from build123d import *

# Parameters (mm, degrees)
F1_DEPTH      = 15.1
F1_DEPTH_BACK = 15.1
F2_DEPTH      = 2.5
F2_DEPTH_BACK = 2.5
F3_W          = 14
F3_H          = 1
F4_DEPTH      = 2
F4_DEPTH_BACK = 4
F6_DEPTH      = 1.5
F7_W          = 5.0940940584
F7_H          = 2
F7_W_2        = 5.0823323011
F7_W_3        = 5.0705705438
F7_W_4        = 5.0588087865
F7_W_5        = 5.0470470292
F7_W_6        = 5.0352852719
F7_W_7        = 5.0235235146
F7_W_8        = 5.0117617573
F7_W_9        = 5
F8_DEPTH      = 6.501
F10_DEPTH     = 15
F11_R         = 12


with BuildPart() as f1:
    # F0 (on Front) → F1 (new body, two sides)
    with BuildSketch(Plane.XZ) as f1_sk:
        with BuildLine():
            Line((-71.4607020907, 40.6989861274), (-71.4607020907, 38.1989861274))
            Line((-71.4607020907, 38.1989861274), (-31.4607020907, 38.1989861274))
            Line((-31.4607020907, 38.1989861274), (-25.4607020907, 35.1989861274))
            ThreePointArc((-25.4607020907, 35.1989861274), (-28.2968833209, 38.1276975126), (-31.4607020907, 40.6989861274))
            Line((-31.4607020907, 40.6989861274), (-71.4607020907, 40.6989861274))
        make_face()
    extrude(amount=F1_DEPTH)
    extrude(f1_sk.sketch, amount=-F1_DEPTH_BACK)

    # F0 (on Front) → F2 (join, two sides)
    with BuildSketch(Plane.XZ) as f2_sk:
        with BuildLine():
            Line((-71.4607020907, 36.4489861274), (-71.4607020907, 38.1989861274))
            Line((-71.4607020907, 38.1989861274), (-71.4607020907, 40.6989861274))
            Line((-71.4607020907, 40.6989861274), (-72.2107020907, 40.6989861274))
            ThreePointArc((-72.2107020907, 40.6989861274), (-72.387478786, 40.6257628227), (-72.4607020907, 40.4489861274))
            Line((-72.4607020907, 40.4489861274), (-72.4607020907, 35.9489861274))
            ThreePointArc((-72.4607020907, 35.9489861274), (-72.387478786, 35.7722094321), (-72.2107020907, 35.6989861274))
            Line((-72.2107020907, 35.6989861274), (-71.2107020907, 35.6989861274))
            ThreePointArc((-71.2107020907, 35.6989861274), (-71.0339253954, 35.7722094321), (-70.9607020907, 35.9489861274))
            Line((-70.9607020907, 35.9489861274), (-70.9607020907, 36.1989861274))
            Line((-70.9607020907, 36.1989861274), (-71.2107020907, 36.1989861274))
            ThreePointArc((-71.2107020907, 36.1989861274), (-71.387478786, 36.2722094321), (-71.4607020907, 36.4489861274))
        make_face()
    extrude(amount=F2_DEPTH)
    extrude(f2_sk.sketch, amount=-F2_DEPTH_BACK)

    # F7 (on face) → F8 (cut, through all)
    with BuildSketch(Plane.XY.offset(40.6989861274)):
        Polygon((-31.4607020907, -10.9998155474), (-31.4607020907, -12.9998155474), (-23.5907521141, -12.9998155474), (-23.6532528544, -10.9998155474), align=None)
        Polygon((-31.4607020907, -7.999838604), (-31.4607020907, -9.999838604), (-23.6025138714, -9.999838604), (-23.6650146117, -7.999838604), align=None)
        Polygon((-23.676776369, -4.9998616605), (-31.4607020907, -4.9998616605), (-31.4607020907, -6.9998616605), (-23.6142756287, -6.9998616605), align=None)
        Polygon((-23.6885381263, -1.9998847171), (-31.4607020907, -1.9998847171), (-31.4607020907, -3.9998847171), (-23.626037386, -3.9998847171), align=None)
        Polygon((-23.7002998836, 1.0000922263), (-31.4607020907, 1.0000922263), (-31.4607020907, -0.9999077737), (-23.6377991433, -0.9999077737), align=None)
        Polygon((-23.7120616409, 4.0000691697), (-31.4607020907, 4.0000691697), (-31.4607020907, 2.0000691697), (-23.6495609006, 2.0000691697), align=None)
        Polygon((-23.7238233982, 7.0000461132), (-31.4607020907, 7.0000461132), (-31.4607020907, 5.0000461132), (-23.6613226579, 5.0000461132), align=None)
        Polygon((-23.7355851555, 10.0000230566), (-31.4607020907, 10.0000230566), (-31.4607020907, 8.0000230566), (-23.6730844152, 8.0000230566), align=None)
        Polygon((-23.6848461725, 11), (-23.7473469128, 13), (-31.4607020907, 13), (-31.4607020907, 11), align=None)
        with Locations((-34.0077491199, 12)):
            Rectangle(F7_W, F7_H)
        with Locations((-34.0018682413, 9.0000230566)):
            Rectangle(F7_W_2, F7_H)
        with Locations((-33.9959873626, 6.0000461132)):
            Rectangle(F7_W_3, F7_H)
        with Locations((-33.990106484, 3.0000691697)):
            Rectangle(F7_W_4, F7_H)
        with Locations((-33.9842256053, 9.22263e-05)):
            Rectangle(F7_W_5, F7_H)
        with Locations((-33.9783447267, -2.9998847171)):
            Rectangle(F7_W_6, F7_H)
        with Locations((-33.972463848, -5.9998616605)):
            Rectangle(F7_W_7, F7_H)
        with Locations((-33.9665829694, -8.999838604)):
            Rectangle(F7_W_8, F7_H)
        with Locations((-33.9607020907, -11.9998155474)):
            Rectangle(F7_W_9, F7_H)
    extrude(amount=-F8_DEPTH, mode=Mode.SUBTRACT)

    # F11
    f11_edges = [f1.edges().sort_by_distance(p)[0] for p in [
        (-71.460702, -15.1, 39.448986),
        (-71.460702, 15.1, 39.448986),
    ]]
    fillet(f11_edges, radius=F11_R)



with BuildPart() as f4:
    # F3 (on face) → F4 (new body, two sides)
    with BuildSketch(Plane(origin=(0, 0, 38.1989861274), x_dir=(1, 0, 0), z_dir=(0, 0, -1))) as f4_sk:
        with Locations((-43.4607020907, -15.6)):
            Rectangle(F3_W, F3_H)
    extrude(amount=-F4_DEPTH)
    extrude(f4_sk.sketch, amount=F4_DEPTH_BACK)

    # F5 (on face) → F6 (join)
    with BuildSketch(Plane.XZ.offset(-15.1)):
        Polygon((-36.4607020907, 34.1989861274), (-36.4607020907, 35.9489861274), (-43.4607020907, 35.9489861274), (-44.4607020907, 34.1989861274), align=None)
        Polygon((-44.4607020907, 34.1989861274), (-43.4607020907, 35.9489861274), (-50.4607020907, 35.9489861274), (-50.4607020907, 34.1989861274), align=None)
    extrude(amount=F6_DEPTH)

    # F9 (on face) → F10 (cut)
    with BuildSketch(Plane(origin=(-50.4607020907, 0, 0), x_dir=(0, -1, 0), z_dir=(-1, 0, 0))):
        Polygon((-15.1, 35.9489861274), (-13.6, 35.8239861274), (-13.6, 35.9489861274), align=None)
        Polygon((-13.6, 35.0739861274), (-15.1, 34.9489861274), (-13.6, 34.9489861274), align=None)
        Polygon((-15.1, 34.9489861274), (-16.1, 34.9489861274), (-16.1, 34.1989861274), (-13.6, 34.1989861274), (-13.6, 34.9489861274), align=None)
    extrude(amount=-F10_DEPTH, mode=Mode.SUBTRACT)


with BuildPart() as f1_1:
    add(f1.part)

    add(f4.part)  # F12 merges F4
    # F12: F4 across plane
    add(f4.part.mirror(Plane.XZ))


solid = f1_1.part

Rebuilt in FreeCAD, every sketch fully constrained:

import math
import FreeCAD as App
import Part
import Sketcher

V = App.Vector


def edges_at(feature, points):
    """Names of the edges that pass closest to the given points."""
    edges = feature.Shape.Edges
    near = lambda p: min(range(len(edges)), key=lambda i: edges[i].distToShape(Part.Vertex(*p))[0])
    return sorted({f"Edge{near(p) + 1}" for p in points})

doc = App.newDocument("Part")
body = doc.addObject("PartDesign::Body", "Body")

# Sketch on XZ plane
sketch1 = body.newObject("Sketcher::SketchObject", "Sketch")
sketch1.AttachmentSupport = (doc.getObject("XZ_Plane"), [""])
sketch1.MapMode = "FlatFace"
sketch1.addGeometry([
    Part.LineSegment(V(-71.460702, 40.698986, 0), V(-71.460702, 38.198986, 0)),  # 0
    Part.LineSegment(V(-71.460702, 38.198986, 0), V(-31.460702, 38.198986, 0)),  # 1
    Part.LineSegment(V(-31.460702, 38.198986, 0), V(-25.460702, 35.198986, 0)),  # 2
    Part.ArcOfCircle(Part.Circle(V(-51.460702, 12.858077, 0), V(0, 0, 1), 34.279968), math.radians(40.671338), math.radians(54.307767)),  # 3
    Part.LineSegment(V(-31.460702, 40.698986, 0), V(-71.460702, 40.698986, 0)),  # 4
], False)
sketch1.addConstraint([
    Sketcher.Constraint("Coincident", 0, 2, 1, 1),
    Sketcher.Constraint("Coincident", 1, 2, 2, 1),
    Sketcher.Constraint("Coincident", 2, 2, 3, 1),
    Sketcher.Constraint("Coincident", 3, 2, 4, 1),
    Sketcher.Constraint("Coincident", 4, 2, 0, 1),
    Sketcher.Constraint("Vertical", 0),
    Sketcher.Constraint("Horizontal", 1),
    Sketcher.Constraint("Horizontal", 4),
    Sketcher.Constraint("Vertical", 1, 2, 3, 2),
    Sketcher.Constraint("DistanceX", 1, 1, 1, 2, 40.0),
    Sketcher.Constraint("DistanceY", 0, 2, 0, 1, 2.5),
    Sketcher.Constraint("DistanceX", 0, 2, 3, 3, 20.0),
    Sketcher.Constraint("DistanceX", 1, 2, 2, 2, 6.0),
    Sketcher.Constraint("DistanceY", 2, 2, 1, 2, 3.0),
    Sketcher.Constraint("DistanceX", 3, 3, -1, 1, 51.460702),
    Sketcher.Constraint("DistanceY", -1, 1, 3, 3, 12.858077),
])
pad1 = body.newObject("PartDesign::Pad", "Pad")
pad1.Profile = sketch1
pad1.Type = "TwoLengths"
pad1.Length = 15.1
pad1.Length2 = 15.1

# Sketch on XZ plane
sketch2 = body.newObject("Sketcher::SketchObject", "Sketch001")
sketch2.AttachmentSupport = (doc.getObject("XZ_Plane"), [""])
sketch2.MapMode = "FlatFace"
sketch2.addGeometry([
    Part.LineSegment(V(-71.460702, 36.448986, 0), V(-71.460702, 40.698986, 0)),  # 0
    Part.LineSegment(V(-71.460702, 40.698986, 0), V(-72.210702, 40.698986, 0)),  # 1
    Part.ArcOfCircle(Part.Circle(V(-72.210702, 40.448986, 0), V(0, 0, 1), 0.25), math.radians(90), math.radians(180)),  # 2
    Part.LineSegment(V(-72.460702, 40.448986, 0), V(-72.460702, 35.948986, 0)),  # 3
    Part.ArcOfCircle(Part.Circle(V(-72.210702, 35.948986, 0), V(0, 0, 1), 0.25), math.radians(180), math.radians(270)),  # 4
    Part.LineSegment(V(-72.210702, 35.698986, 0), V(-71.210702, 35.698986, 0)),  # 5
    Part.ArcOfCircle(Part.Circle(V(-71.210702, 35.948986, 0), V(0, 0, 1), 0.25), math.radians(-90), math.radians(0)),  # 6
    Part.LineSegment(V(-70.960702, 35.948986, 0), V(-70.960702, 36.198986, 0)),  # 7
    Part.LineSegment(V(-70.960702, 36.198986, 0), V(-71.210702, 36.198986, 0)),  # 8
    Part.ArcOfCircle(Part.Circle(V(-71.210702, 36.448986, 0), V(0, 0, 1), 0.25), math.radians(180), math.radians(270)),  # 9
], False)
sketch2.addConstraint([
    Sketcher.Constraint("Coincident", 0, 2, 1, 1),
    Sketcher.Constraint("Tangent", 1, 2, 2, 1),
    Sketcher.Constraint("Tangent", 2, 2, 3, 1),
    Sketcher.Constraint("Tangent", 3, 2, 4, 1),
    Sketcher.Constraint("Tangent", 4, 2, 5, 1),
    Sketcher.Constraint("Tangent", 5, 2, 6, 1),
    Sketcher.Constraint("Tangent", 6, 2, 7, 1),
    Sketcher.Constraint("Coincident", 7, 2, 8, 1),
    Sketcher.Constraint("Tangent", 8, 2, 9, 2),
    Sketcher.Constraint("Tangent", 9, 1, 0, 1),
    Sketcher.Constraint("Vertical", 0),
    Sketcher.Constraint("Horizontal", 1),
    Sketcher.Constraint("Vertical", 3),
    Sketcher.Constraint("Horizontal", 5),
    Sketcher.Constraint("Vertical", 7),
    Sketcher.Constraint("Horizontal", 8),
    Sketcher.Constraint("Equal", 2, 4),
    Sketcher.Constraint("Equal", 4, 6),
    Sketcher.Constraint("Equal", 6, 9),
    Sketcher.Constraint("Vertical", 6, 3, 9, 3),
    Sketcher.Constraint("Equal", 8, 7),
    Sketcher.Constraint("DistanceX", 5, 1, 5, 2, 1.0),
    Sketcher.Constraint("Radius", 2, 0.25),
    Sketcher.Constraint("DistanceY", 3, 2, 3, 1, 4.5),
    Sketcher.Constraint("DistanceX", 2, 3, -1, 1, 72.210702),
    Sketcher.Constraint("DistanceY", -1, 1, 2, 3, 40.448986),
])
pad2 = body.newObject("PartDesign::Pad", "Pad001")
pad2.Profile = sketch2
pad2.Type = "TwoLengths"
pad2.Length = 2.5
pad2.Length2 = 2.5

# Sketch on XY plane
sketch3 = body.newObject("Sketcher::SketchObject", "Sketch002")
sketch3.AttachmentSupport = (doc.getObject("XY_Plane"), [""])
sketch3.MapMode = "FlatFace"
sketch3.AttachmentOffset = App.Placement(V(0, 0, 40.698986), App.Rotation())
sketch3.addGeometry([
    Part.LineSegment(V(-23.590752, -12.999816, 0), V(-23.653253, -10.999816, 0)),  # 0
    Part.LineSegment(V(-23.653253, -10.999816, 0), V(-36.460702, -10.999816, 0)),  # 1
    Part.LineSegment(V(-36.460702, -10.999816, 0), V(-36.460702, -12.999816, 0)),  # 2
    Part.LineSegment(V(-36.460702, -12.999816, 0), V(-23.590752, -12.999816, 0)),  # 3
    Part.LineSegment(V(-23.602514, -9.999839, 0), V(-23.665015, -7.999839, 0)),  # 4
    Part.LineSegment(V(-23.665015, -7.999839, 0), V(-36.472464, -7.999839, 0)),  # 5
    Part.LineSegment(V(-36.472464, -7.999839, 0), V(-36.472464, -9.999839, 0)),  # 6
    Part.LineSegment(V(-36.472464, -9.999839, 0), V(-23.602514, -9.999839, 0)),  # 7
    Part.LineSegment(V(-23.676776, -4.999862, 0), V(-36.484226, -4.999862, 0)),  # 8
    Part.LineSegment(V(-36.484226, -4.999862, 0), V(-36.484226, -6.999862, 0)),  # 9
    Part.LineSegment(V(-36.484226, -6.999862, 0), V(-23.614276, -6.999862, 0)),  # 10
    Part.LineSegment(V(-23.614276, -6.999862, 0), V(-23.676776, -4.999862, 0)),  # 11
    Part.LineSegment(V(-23.688538, -1.999885, 0), V(-36.495987, -1.999885, 0)),  # 12
    Part.LineSegment(V(-36.495987, -1.999885, 0), V(-36.495987, -3.999885, 0)),  # 13
    Part.LineSegment(V(-36.495987, -3.999885, 0), V(-23.626037, -3.999885, 0)),  # 14
    Part.LineSegment(V(-23.626037, -3.999885, 0), V(-23.688538, -1.999885, 0)),  # 15
    Part.LineSegment(V(-23.7003, 1.000092, 0), V(-36.507749, 1.000092, 0)),  # 16
    Part.LineSegment(V(-36.507749, 1.000092, 0), V(-36.507749, -0.999908, 0)),  # 17
    Part.LineSegment(V(-36.507749, -0.999908, 0), V(-23.637799, -0.999908, 0)),  # 18
    Part.LineSegment(V(-23.637799, -0.999908, 0), V(-23.7003, 1.000092, 0)),  # 19
    Part.LineSegment(V(-23.712062, 4.000069, 0), V(-36.519511, 4.000069, 0)),  # 20
    Part.LineSegment(V(-36.519511, 4.000069, 0), V(-36.519511, 2.000069, 0)),  # 21
    Part.LineSegment(V(-36.519511, 2.000069, 0), V(-23.649561, 2.000069, 0)),  # 22
    Part.LineSegment(V(-23.649561, 2.000069, 0), V(-23.712062, 4.000069, 0)),  # 23
    Part.LineSegment(V(-23.723823, 7.000046, 0), V(-36.531273, 7.000046, 0)),  # 24
    Part.LineSegment(V(-36.531273, 7.000046, 0), V(-36.531273, 5.000046, 0)),  # 25
    Part.LineSegment(V(-36.531273, 5.000046, 0), V(-23.661323, 5.000046, 0)),  # 26
    Part.LineSegment(V(-23.661323, 5.000046, 0), V(-23.723823, 7.000046, 0)),  # 27
    Part.LineSegment(V(-23.735585, 10.000023, 0), V(-36.543034, 10.000023, 0)),  # 28
    Part.LineSegment(V(-36.543034, 10.000023, 0), V(-36.543034, 8.000023, 0)),  # 29
    Part.LineSegment(V(-36.543034, 8.000023, 0), V(-23.673084, 8.000023, 0)),  # 30
    Part.LineSegment(V(-23.673084, 8.000023, 0), V(-23.735585, 10.000023, 0)),  # 31
    Part.LineSegment(V(-23.684846, 11, 0), V(-23.747347, 13, 0)),  # 32
    Part.LineSegment(V(-23.747347, 13, 0), V(-36.554796, 13, 0)),  # 33
    Part.LineSegment(V(-36.554796, 13, 0), V(-36.554796, 11, 0)),  # 34
    Part.LineSegment(V(-36.554796, 11, 0), V(-23.684846, 11, 0)),  # 35
], False)
sketch3.addConstraint([
    Sketcher.Constraint("Coincident", 0, 2, 1, 1),
    Sketcher.Constraint("Coincident", 1, 2, 2, 1),
    Sketcher.Constraint("Coincident", 2, 2, 3, 1),
    Sketcher.Constraint("Coincident", 3, 2, 0, 1),
    Sketcher.Constraint("Coincident", 4, 2, 5, 1),
    Sketcher.Constraint("Coincident", 5, 2, 6, 1),
    Sketcher.Constraint("Coincident", 6, 2, 7, 1),
    Sketcher.Constraint("Coincident", 7, 2, 4, 1),
    Sketcher.Constraint("Coincident", 8, 2, 9, 1),
    Sketcher.Constraint("Coincident", 9, 2, 10, 1),
    Sketcher.Constraint("Coincident", 10, 2, 11, 1),
    Sketcher.Constraint("Coincident", 11, 2, 8, 1),
    Sketcher.Constraint("Coincident", 12, 2, 13, 1),
    Sketcher.Constraint("Coincident", 13, 2, 14, 1),
    Sketcher.Constraint("Coincident", 14, 2, 15, 1),
    Sketcher.Constraint("Coincident", 15, 2, 12, 1),
    Sketcher.Constraint("Coincident", 16, 2, 17, 1),
    Sketcher.Constraint("Coincident", 17, 2, 18, 1),
    Sketcher.Constraint("Coincident", 18, 2, 19, 1),
    Sketcher.Constraint("Coincident", 19, 2, 16, 1),
    Sketcher.Constraint("Coincident", 20, 2, 21, 1),
    Sketcher.Constraint("Coincident", 21, 2, 22, 1),
    Sketcher.Constraint("Coincident", 22, 2, 23, 1),
    Sketcher.Constraint("Coincident", 23, 2, 20, 1),
    Sketcher.Constraint("Coincident", 24, 2, 25, 1),
    Sketcher.Constraint("Coincident", 25, 2, 26, 1),
    Sketcher.Constraint("Coincident", 26, 2, 27, 1),
    Sketcher.Constraint("Coincident", 27, 2, 24, 1),
    Sketcher.Constraint("Coincident", 28, 2, 29, 1),
    Sketcher.Constraint("Coincident", 29, 2, 30, 1),
    Sketcher.Constraint("Coincident", 30, 2, 31, 1),
    Sketcher.Constraint("Coincident", 31, 2, 28, 1),
    Sketcher.Constraint("Coincident", 32, 2, 33, 1),
    Sketcher.Constraint("Coincident", 33, 2, 34, 1),
    Sketcher.Constraint("Coincident", 34, 2, 35, 1),
    Sketcher.Constraint("Coincident", 35, 2, 32, 1),
    Sketcher.Constraint("Horizontal", 1),
    Sketcher.Constraint("Vertical", 2),
    Sketcher.Constraint("Horizontal", 3),
    Sketcher.Constraint("Horizontal", 5),
    Sketcher.Constraint("Vertical", 6),
    Sketcher.Constraint("Horizontal", 7),
    Sketcher.Constraint("Horizontal", 8),
    Sketcher.Constraint("Vertical", 9),
    Sketcher.Constraint("Horizontal", 10),
    Sketcher.Constraint("Horizontal", 12),
    Sketcher.Constraint("Vertical", 13),
    Sketcher.Constraint("Horizontal", 14),
    Sketcher.Constraint("Horizontal", 16),
    Sketcher.Constraint("Vertical", 17),
    Sketcher.Constraint("Horizontal", 18),
    Sketcher.Constraint("Horizontal", 20),
    Sketcher.Constraint("Vertical", 21),
    Sketcher.Constraint("Horizontal", 22),
    Sketcher.Constraint("Horizontal", 24),
    Sketcher.Constraint("Vertical", 25),
    Sketcher.Constraint("Horizontal", 26),
    Sketcher.Constraint("Horizontal", 28),
    Sketcher.Constraint("Vertical", 29),
    Sketcher.Constraint("Horizontal", 30),
    Sketcher.Constraint("Horizontal", 33),
    Sketcher.Constraint("Vertical", 34),
    Sketcher.Constraint("Horizontal", 35),
    Sketcher.Constraint("Parallel", 0, 4),
    Sketcher.Constraint("Parallel", 4, 11),
    Sketcher.Constraint("Parallel", 11, 15),
    Sketcher.Constraint("Parallel", 15, 19),
    Sketcher.Constraint("Parallel", 19, 23),
    Sketcher.Constraint("Parallel", 23, 27),
    Sketcher.Constraint("Parallel", 27, 31),
    Sketcher.Constraint("Parallel", 31, 32),
    Sketcher.Constraint("Equal", 1, 5),
    Sketcher.Constraint("Equal", 3, 7),
    Sketcher.Constraint("Equal", 5, 8),
    Sketcher.Constraint("Equal", 7, 10),
    Sketcher.Constraint("Equal", 8, 12),
    Sketcher.Constraint("Equal", 10, 14),
    Sketcher.Constraint("Equal", 12, 16),
    Sketcher.Constraint("Equal", 14, 18),
    Sketcher.Constraint("Equal", 16, 20),
    Sketcher.Constraint("Equal", 18, 22),
    Sketcher.Constraint("Equal", 20, 24),
    Sketcher.Constraint("Equal", 22, 26),
    Sketcher.Constraint("Equal", 24, 28),
    Sketcher.Constraint("Equal", 26, 30),
    Sketcher.Constraint("Equal", 28, 33),
    Sketcher.Constraint("Equal", 30, 35),
    Sketcher.Constraint("DistanceY", 2, 2, 2, 1, 2.0),
    Sketcher.Constraint("DistanceY", -1, 1, 32, 2, 13.0),
    Sketcher.Constraint("DistanceX", 1, 2, 1, 1, 12.807449),
    Sketcher.Constraint("DistanceX", 3, 1, 3, 2, 12.86995),
    Sketcher.Constraint("DistanceX", 18, 2, -1, 1, 23.637799),
    Sketcher.Constraint("DistanceY", 4, 2, -1, 1, 7.999839),
    Sketcher.Constraint("DistanceY", 8, 2, -1, 1, 4.999862),
    Sketcher.Constraint("DistanceX", 15, 2, -1, 1, 23.688538),
    Sketcher.Constraint("DistanceX", 20, 2, -1, 1, 36.519511),
    Sketcher.Constraint("DistanceY", -1, 1, 20, 2, 4.000069),
    Sketcher.Constraint("DistanceX", 4, 2, 0, 2, 0.011762),
    Sketcher.Constraint("DistanceX", 8, 2, 5, 2, 0.011762),
    Sketcher.Constraint("DistanceX", 12, 2, 8, 2, 0.011762),
    Sketcher.Constraint("DistanceY", 1, 2, 12, 2, 8.999931),
    Sketcher.Constraint("DistanceY", 5, 2, 16, 2, 8.999931),
    Sketcher.Constraint("DistanceX", 24, 2, 20, 2, 0.011762),
    Sketcher.Constraint("DistanceY", 12, 2, 24, 2, 8.999931),
    Sketcher.Constraint("DistanceX", 28, 2, 24, 2, 0.011762),
    Sketcher.Constraint("DistanceY", 16, 2, 28, 2, 8.999931),
    Sketcher.Constraint("DistanceX", 32, 2, 31, 2, 0.011762),
    Sketcher.Constraint("DistanceY", 0, 2, -1, 1, 10.999816),
])
pocket1 = body.newObject("PartDesign::Pocket", "Pocket")
pocket1.Profile = sketch3
pocket1.Type = "ThroughAll"
doc.recompute()

fillet = body.newObject("PartDesign::Fillet", "Fillet")
fillet.Base = (pocket1, edges_at(pocket1, [(-71.461, -15.1, 39.449), (-71.461, 15.1, 39.449)]))
fillet.Radius = 12
body2 = doc.addObject("PartDesign::Body", "Body001")

# Sketch on XY plane
sketch4 = body2.newObject("Sketcher::SketchObject", "Sketch003")
sketch4.AttachmentSupport = (doc.getObject("XY_Plane001"), [""])
sketch4.MapMode = "FlatFace"
sketch4.AttachmentOffset = App.Placement(V(0, 0, 38.198986), App.Rotation())
sketch4.addGeometry([
    Part.LineSegment(V(-50.460702, 15.1, 0), V(-50.460702, 16.1, 0)),
    Part.LineSegment(V(-50.460702, 16.1, 0), V(-36.460702, 16.1, 0)),
    Part.LineSegment(V(-36.460702, 16.1, 0), V(-36.460702, 15.1, 0)),
    Part.LineSegment(V(-36.460702, 15.1, 0), V(-50.460702, 15.1, 0)),
], False)
sketch4.addConstraint([
    Sketcher.Constraint("Coincident", 0, 2, 1, 1),
    Sketcher.Constraint("Coincident", 1, 2, 2, 1),
    Sketcher.Constraint("Coincident", 2, 2, 3, 1),
    Sketcher.Constraint("Coincident", 3, 2, 0, 1),
    Sketcher.Constraint("Vertical", 0),
    Sketcher.Constraint("Horizontal", 1),
    Sketcher.Constraint("Vertical", 2),
    Sketcher.Constraint("Horizontal", 3),
    Sketcher.Constraint("DistanceX", 1, 1, 1, 2, 14.0),
    Sketcher.Constraint("DistanceY", 0, 1, 0, 2, 1.0),
    Sketcher.Constraint("DistanceY", -1, 1, 0, 2, 16.1),
    Sketcher.Constraint("DistanceX", 0, 2, -1, 1, 50.460702),
])
pad3 = body2.newObject("PartDesign::Pad", "Pad002")
pad3.Profile = sketch4
pad3.Type = "TwoLengths"
pad3.Length = 2
pad3.Length2 = 4

# Sketch on XZ plane
sketch5 = body2.newObject("Sketcher::SketchObject", "Sketch004")
sketch5.AttachmentSupport = (doc.getObject("XZ_Plane001"), [""])
sketch5.MapMode = "FlatFace"
sketch5.AttachmentOffset = App.Placement(V(0, 0, -15.1), App.Rotation())
sketch5.addGeometry([
    Part.LineSegment(V(-36.460702, 34.198986, 0), V(-36.460702, 35.948986, 0)),
    Part.LineSegment(V(-36.460702, 35.948986, 0), V(-50.460702, 35.948986, 0)),
    Part.LineSegment(V(-50.460702, 35.948986, 0), V(-50.460702, 34.198986, 0)),
    Part.LineSegment(V(-50.460702, 34.198986, 0), V(-36.460702, 34.198986, 0)),
], False)
sketch5.addConstraint([
    Sketcher.Constraint("Coincident", 0, 2, 1, 1),
    Sketcher.Constraint("Coincident", 1, 2, 2, 1),
    Sketcher.Constraint("Coincident", 2, 2, 3, 1),
    Sketcher.Constraint("Coincident", 3, 2, 0, 1),
    Sketcher.Constraint("Vertical", 0),
    Sketcher.Constraint("Horizontal", 1),
    Sketcher.Constraint("Vertical", 2),
    Sketcher.Constraint("Horizontal", 3),
    Sketcher.Constraint("DistanceX", 1, 2, 1, 1, 14.0),
    Sketcher.Constraint("DistanceY", 0, 1, 0, 2, 1.75),
    Sketcher.Constraint("DistanceX", 0, 2, -1, 1, 36.460702),
    Sketcher.Constraint("DistanceY", -1, 1, 0, 2, 35.948986),
])
pad4 = body2.newObject("PartDesign::Pad", "Pad003")
pad4.Profile = sketch5
pad4.Length = 1.5

# Sketch on YZ plane
sketch6 = body2.newObject("Sketcher::SketchObject", "Sketch005")
sketch6.AttachmentSupport = (doc.getObject("YZ_Plane001"), [""])
sketch6.MapMode = "FlatFace"
sketch6.AttachmentOffset = App.Placement(V(0, 0, -50.460702), App.Rotation())
sketch6.addGeometry([
    Part.LineSegment(V(15.1, 35.948986, 0), V(13.6, 35.823986, 0)),  # 0
    Part.LineSegment(V(13.6, 35.823986, 0), V(13.6, 35.948986, 0)),  # 1
    Part.LineSegment(V(13.6, 35.948986, 0), V(15.1, 35.948986, 0)),  # 2
    Part.LineSegment(V(13.6, 35.073986, 0), V(15.1, 34.948986, 0)),  # 3
    Part.LineSegment(V(15.1, 34.948986, 0), V(16.1, 34.948986, 0)),  # 4
    Part.LineSegment(V(16.1, 34.948986, 0), V(16.1, 34.198986, 0)),  # 5
    Part.LineSegment(V(16.1, 34.198986, 0), V(13.6, 34.198986, 0)),  # 6
    Part.LineSegment(V(13.6, 34.198986, 0), V(13.6, 35.073986, 0)),  # 7
], False)
sketch6.addConstraint([
    Sketcher.Constraint("Coincident", 0, 2, 1, 1),
    Sketcher.Constraint("Coincident", 1, 2, 2, 1),
    Sketcher.Constraint("Coincident", 2, 2, 0, 1),
    Sketcher.Constraint("Coincident", 3, 2, 4, 1),
    Sketcher.Constraint("Coincident", 4, 2, 5, 1),
    Sketcher.Constraint("Coincident", 5, 2, 6, 1),
    Sketcher.Constraint("Coincident", 6, 2, 7, 1),
    Sketcher.Constraint("Coincident", 7, 2, 3, 1),
    Sketcher.Constraint("Vertical", 1),
    Sketcher.Constraint("Horizontal", 2),
    Sketcher.Constraint("Horizontal", 4),
    Sketcher.Constraint("Vertical", 5),
    Sketcher.Constraint("Horizontal", 6),
    Sketcher.Constraint("Vertical", 7),
    Sketcher.Constraint("Vertical", 2, 2, 3, 2),
    Sketcher.Constraint("Vertical", 1, 2, 6, 2),
    Sketcher.Constraint("Equal", 0, 3),
    Sketcher.Constraint("DistanceX", 4, 1, 4, 2, 1.0),
    Sketcher.Constraint("DistanceX", 2, 1, 2, 2, 1.5),
    Sketcher.Constraint("DistanceY", 3, 2, 2, 2, 1.0),
    Sketcher.Constraint("DistanceY", 5, 2, 5, 1, 0.75),
    Sketcher.Constraint("DistanceX", -1, 1, 0, 2, 13.6),
    Sketcher.Constraint("DistanceY", 1, 1, 1, 2, 0.125),
    Sketcher.Constraint("DistanceY", -1, 1, 0, 2, 35.823986),
])
pocket2 = body2.newObject("PartDesign::Pocket", "Pocket001")
pocket2.Profile = sketch6
pocket2.Length = 15
pocket2.Reversed = True
doc.recompute()

body3 = doc.addObject("PartDesign::Body", "Body002")
body3.BaseFeature = body2
boolean = body.newObject("PartDesign::Boolean", "Boolean")
boolean.Type = "Fuse"
boolean.addObjects([body3])
doc.recompute()

mirroring = doc.addObject("Part::Mirroring", "Mirroring")
mirroring.Source = body2
mirroring.Base = V(0, 0, 0)
mirroring.Normal = V(0, -1, 0)
body4 = doc.addObject("PartDesign::Body", "Body003")
body4.BaseFeature = mirroring
boolean2 = body.newObject("PartDesign::Boolean", "Boolean001")
boolean2.Type = "Fuse"
boolean2.addObjects([body4])
doc.recompute()
mirroring.Visibility = False

doc.recompute()
